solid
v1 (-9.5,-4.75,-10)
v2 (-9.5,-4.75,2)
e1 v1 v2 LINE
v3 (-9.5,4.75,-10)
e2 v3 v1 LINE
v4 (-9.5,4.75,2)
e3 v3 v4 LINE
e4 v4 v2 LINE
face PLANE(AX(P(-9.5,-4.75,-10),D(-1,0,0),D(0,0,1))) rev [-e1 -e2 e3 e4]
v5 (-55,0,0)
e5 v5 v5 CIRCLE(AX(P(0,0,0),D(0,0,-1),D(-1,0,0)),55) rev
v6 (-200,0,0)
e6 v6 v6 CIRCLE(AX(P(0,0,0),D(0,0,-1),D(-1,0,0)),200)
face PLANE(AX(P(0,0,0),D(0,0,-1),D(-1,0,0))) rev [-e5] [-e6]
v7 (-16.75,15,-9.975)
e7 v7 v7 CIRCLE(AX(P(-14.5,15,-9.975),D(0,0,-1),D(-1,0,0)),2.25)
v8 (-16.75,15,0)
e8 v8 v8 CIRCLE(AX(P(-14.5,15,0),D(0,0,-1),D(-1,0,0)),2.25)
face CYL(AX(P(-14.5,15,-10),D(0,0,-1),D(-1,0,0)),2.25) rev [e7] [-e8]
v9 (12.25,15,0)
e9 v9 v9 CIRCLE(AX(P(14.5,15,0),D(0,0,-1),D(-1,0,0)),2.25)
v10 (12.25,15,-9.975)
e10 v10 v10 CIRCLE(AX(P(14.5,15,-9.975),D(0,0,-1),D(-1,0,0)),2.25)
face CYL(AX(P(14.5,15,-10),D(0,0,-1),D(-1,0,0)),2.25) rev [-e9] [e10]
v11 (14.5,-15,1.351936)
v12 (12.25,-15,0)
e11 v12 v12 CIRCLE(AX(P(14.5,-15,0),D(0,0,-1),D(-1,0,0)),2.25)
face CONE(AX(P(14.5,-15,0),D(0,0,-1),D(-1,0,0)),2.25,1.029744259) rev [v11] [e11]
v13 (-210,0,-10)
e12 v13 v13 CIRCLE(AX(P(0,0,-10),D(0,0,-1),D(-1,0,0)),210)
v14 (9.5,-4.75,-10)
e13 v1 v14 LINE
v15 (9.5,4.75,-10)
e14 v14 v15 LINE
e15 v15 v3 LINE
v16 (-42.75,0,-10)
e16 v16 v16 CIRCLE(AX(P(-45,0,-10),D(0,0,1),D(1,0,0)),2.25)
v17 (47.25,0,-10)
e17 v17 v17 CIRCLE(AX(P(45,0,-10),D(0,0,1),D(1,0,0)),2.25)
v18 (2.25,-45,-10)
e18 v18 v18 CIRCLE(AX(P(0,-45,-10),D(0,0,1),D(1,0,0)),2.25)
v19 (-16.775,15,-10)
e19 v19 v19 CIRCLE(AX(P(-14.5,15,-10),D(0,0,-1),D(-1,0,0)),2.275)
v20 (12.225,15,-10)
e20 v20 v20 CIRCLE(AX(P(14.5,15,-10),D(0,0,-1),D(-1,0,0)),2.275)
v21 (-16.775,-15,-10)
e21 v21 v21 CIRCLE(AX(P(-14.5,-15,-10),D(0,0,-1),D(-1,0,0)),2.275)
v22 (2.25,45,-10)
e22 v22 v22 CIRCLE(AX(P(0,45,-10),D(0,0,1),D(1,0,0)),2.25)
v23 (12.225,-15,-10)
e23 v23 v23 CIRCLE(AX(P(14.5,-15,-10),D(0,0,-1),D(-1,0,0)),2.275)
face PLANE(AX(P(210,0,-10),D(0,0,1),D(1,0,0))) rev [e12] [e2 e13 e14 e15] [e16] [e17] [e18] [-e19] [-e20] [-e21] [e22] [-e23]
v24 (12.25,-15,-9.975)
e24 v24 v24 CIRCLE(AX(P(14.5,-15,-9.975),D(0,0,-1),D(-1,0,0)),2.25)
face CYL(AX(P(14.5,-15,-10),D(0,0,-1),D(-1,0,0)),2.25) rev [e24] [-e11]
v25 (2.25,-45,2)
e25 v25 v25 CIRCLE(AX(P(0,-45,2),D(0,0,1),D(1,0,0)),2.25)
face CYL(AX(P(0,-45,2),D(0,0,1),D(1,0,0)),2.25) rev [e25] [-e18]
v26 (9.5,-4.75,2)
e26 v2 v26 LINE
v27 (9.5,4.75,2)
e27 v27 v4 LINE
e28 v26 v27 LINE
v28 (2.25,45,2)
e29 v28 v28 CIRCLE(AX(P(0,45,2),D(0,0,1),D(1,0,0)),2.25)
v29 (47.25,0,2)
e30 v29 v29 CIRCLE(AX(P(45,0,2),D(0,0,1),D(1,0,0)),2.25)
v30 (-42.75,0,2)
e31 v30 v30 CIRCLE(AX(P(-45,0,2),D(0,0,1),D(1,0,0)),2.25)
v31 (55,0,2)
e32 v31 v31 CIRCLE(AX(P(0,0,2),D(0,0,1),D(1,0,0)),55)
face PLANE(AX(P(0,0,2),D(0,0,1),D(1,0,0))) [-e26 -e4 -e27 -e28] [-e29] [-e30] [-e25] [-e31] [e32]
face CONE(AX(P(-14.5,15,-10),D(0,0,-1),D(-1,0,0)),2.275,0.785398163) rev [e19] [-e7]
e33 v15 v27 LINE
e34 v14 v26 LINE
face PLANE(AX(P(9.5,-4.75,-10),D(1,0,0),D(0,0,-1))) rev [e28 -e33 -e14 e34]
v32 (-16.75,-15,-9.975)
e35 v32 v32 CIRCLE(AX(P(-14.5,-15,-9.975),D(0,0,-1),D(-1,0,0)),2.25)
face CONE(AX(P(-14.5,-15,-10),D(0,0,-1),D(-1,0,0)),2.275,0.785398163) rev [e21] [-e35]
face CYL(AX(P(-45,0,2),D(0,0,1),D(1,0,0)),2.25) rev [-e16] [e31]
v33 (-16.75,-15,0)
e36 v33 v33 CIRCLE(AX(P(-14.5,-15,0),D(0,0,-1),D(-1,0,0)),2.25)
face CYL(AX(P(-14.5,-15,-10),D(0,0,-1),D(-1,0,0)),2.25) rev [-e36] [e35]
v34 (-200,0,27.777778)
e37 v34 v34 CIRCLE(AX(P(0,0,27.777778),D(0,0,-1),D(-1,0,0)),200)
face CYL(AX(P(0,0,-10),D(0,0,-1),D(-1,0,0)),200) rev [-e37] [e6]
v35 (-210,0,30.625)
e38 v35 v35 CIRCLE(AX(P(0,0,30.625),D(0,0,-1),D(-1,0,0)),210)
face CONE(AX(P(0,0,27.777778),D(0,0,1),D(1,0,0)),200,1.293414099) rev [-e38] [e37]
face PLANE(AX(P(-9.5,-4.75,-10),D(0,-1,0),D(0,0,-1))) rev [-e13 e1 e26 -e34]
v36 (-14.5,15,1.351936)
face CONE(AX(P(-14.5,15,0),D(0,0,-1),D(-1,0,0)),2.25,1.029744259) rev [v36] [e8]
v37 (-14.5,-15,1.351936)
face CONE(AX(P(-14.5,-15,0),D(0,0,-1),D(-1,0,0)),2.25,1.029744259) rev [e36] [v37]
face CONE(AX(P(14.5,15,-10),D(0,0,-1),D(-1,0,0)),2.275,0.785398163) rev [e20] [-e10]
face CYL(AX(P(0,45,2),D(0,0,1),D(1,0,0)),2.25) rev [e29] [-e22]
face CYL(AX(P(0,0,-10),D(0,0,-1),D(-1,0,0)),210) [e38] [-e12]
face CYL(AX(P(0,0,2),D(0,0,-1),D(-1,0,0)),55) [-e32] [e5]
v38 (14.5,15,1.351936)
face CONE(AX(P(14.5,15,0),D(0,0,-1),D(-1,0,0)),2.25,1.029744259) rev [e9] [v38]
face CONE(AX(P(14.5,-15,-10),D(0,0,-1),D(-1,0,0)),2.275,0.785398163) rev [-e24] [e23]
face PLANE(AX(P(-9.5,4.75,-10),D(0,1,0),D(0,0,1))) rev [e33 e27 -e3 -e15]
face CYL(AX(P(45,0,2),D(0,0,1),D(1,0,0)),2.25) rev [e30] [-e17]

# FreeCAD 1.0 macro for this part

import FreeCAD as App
import Part
import Sketcher
from FreeCAD import Vector
Q = App.Units.Quantity


def add_polygon(sketch, points):
    """Adds a closed chain of lines whose ends are joined by coincident constraints."""
    first, n = sketch.GeometryCount, len(points)
    for a, b in zip(points, points[1:] + points[:1]):
        sketch.addGeometry(Part.LineSegment(App.Vector(*a, 0), App.Vector(*b, 0)), False)
    for i in range(n):
        sketch.addConstraint(Sketcher.Constraint("Coincident", first + i, 2, first + (i + 1) % n, 1))

doc = App.newDocument("Part")
params = doc.addObject("Spreadsheet::Sheet", "Params")
for row, (alias, value) in enumerate([
    ("sketch1_width", "200 mm"),
    ("sketch1_width2", "210 mm"),
    ("sketch1_height", "10 mm"),
    ("revolution_angle", "360 deg"),
    ("sketch2_width", "19 mm"),
    ("sketch2_height", "9.5 mm"),
    ("sketch3_diameter", "110 mm"),
    ("pad1_length", "2 mm"),
    ("sketch4_width", "19 mm"),
    ("sketch4_height", "9.5 mm"),
    ("pocket2_length", "2 mm"),
    ("sketch5_diameter", "4.5 mm"),
    ("hole_diameter", "4.5 mm"),
    ("sketch6_diameter", "4.5 mm"),
    ("hole2_diameter", "4.5 mm"),
    ("hole2_depth", "10 mm"),
    ("hole2_csink_diameter", "4.55 mm"),
], start=1):
    params.set(f"A{row}", alias)
    params.set(f"B{row}", "=" + value)
    params.setAlias(f"B{row}", alias)

body = doc.addObject("PartDesign::Body", "Body")

# Sketch on XZ plane
sketch1 = body.newObject("Sketcher::SketchObject", "Sketch")
sketch1.AttachmentSupport = (doc.getObject("XZ_Plane"), [""])
sketch1.MapMode = "FlatFace"
add_polygon(sketch1, [(0, 0), (200, 0), (200, 28), (210, 31), (210, -10), (0, -10)])  # lines 0-5
sketch1.addConstraint([
    Sketcher.Constraint("Horizontal", 0),
    Sketcher.Constraint("Vertical", 1),
    Sketcher.Constraint("Vertical", 3),
    Sketcher.Constraint("Horizontal", 4),
    Sketcher.Constraint("Vertical", 5),
    Sketcher.Constraint("Coincident", 5, 2, -1, 1),
    Sketcher.Constraint("DistanceX", 0, 1, 0, 2, Q("200 mm")),
    Sketcher.Constraint("DistanceX", 4, 2, 4, 1, Q("210 mm")),
    Sketcher.Constraint("DistanceY", 5, 1, 5, 2, Q("10 mm")),
    Sketcher.Constraint("DistanceY", 3, 2, 3, 1, Q("40.625 mm")),
    Sketcher.Constraint("DistanceY", 1, 1, 1, 2, Q("27.777778 mm")),
])
sketch1.setExpression("Constraints[12]", "Params.sketch1_width")
sketch1.setExpression("Constraints[13]", "Params.sketch1_width2")
sketch1.setExpression("Constraints[14]", "Params.sketch1_height")
revolution = body.newObject("PartDesign::Revolution", "Revolution")
revolution.Profile = sketch1
revolution.ReferenceAxis = (sketch1, ["V_Axis"])
revolution.setExpression("Angle", "Params.revolution_angle")

# Sketch on XY plane
sketch2 = body.newObject("Sketcher::SketchObject", "Sketch001")
sketch2.AttachmentSupport = (doc.getObject("XY_Plane"), [""])
sketch2.MapMode = "FlatFace"
add_polygon(sketch2, [(-10, 5), (-10, -5), (10, -5), (10, 5)])  # lines 0-3
sketch2.addConstraint([
    Sketcher.Constraint("Vertical", 0),
    Sketcher.Constraint("Horizontal", 1),
    Sketcher.Constraint("Vertical", 2),
    Sketcher.Constraint("Horizontal", 3),
    Sketcher.Constraint("Symmetric", 0, 2, 2, 2, -1, 1),
    Sketcher.Constraint("DistanceX", 1, 1, 1, 2, Q("19 mm")),
    Sketcher.Constraint("DistanceY", 0, 2, 0, 1, Q("9.5 mm")),
])
sketch2.setExpression("Constraints[9]", "Params.sketch2_width")
sketch2.setExpression("Constraints[10]", "Params.sketch2_height")
pocket1 = body.newObject("PartDesign::Pocket", "Pocket")
pocket1.Profile = sketch2
pocket1.Type = "ThroughAll"
pocket1.Midplane = True

# Sketch on XY plane
sketch3 = body.newObject("Sketcher::SketchObject", "Sketch002")
sketch3.AttachmentSupport = (doc.getObject("XY_Plane"), [""])
sketch3.MapMode = "FlatFace"
sketch3.addGeometry(Part.Circle(Vector(0, 0, 0), Vector(0, 0, 1), 55), False)
sketch3.addConstraint([
    Sketcher.Constraint("Coincident", 0, 3, -1, 1),
    Sketcher.Constraint("Diameter", 0, Q("110 mm")),
])
sketch3.setExpression("Constraints[1]", "Params.sketch3_diameter")
pad1 = body.newObject("PartDesign::Pad", "Pad")
pad1.Profile = sketch3
pad1.setExpression("Length", "Params.pad1_length")

# Sketch on XY plane
sketch4 = body.newObject("Sketcher::SketchObject", "Sketch003")
sketch4.AttachmentSupport = (doc.getObject("XY_Plane"), [""])
sketch4.MapMode = "FlatFace"
sketch4.AttachmentOffset = App.Placement(Vector(0, 0, 2), App.Rotation())
add_polygon(sketch4, [(-10, 5), (-10, -5), (10, -5), (10, 5)])  # lines 0-3
sketch4.addConstraint([
    Sketcher.Constraint("Vertical", 0),
    Sketcher.Constraint("Horizontal", 1),
    Sketcher.Constraint("Vertical", 2),
    Sketcher.Constraint("Horizontal", 3),
    Sketcher.Constraint("Symmetric", 0, 2, 2, 2, -1, 1),
    Sketcher.Constraint("DistanceX", 1, 1, 1, 2, Q("19 mm")),
    Sketcher.Constraint("DistanceY", 0, 2, 0, 1, Q("9.5 mm")),
])
sketch4.setExpression("Constraints[9]", "Params.sketch4_width")
sketch4.setExpression("Constraints[10]", "Params.sketch4_height")
pocket2 = body.newObject("PartDesign::Pocket", "Pocket001")
pocket2.Profile = sketch4
pocket2.setExpression("Length", "Params.pocket2_length")

# Sketch on XY plane
sketch5 = body.newObject("Sketcher::SketchObject", "Sketch004")
sketch5.AttachmentSupport = (doc.getObject("XY_Plane"), [""])
sketch5.MapMode = "FlatFace"
sketch5.AttachmentOffset = App.Placement(Vector(0, 0, 2), App.Rotation())
sketch5.addGeometry(Part.Circle(Vector(0, 45, 0), Vector(0, 0, 1), 2.2), False)
sketch5.addConstraint([
    Sketcher.Constraint("PointOnObject", 0, 3, -2),
    Sketcher.Constraint("Diameter", 0, Q("4.5 mm")),
    Sketcher.Constraint("DistanceY", -1, 1, 0, 3, Q("45 mm")),
])
sketch5.setExpression("Constraints[1]", "Params.sketch5_diameter")
doc.recompute()
hole = body.newObject("PartDesign::Hole", "Hole")
hole.Profile = sketch5
hole.ThreadType = "None"
hole.setExpression("Diameter", "Params.hole_diameter")
hole.DepthType = "ThroughAll"
doc.recompute()

polarpattern = body.newObject("PartDesign::PolarPattern", "PolarPattern")
polarpattern.Originals = [hole]
polarpattern.Axis = (doc.getObject("Z_Axis"), [""])
polarpattern.Angle = 360
polarpattern.Occurrences = 4
body.Tip = polarpattern

# Sketch on XY plane
sketch6 = body.newObject("Sketcher::SketchObject", "Sketch005")
sketch6.AttachmentSupport = (doc.getObject("XY_Plane"), [""])
sketch6.MapMode = "FlatFace"
sketch6.AttachmentOffset = App.Placement(Vector(0, 0, -10), App.Rotation())
sketch6.addGeometry([
    Part.Circle(Vector(-14.5, 15, 0), Vector(0, 0, 1), 2.2),
    Part.Circle(Vector(14.5, 15, 0), Vector(0, 0, 1), 2.2),
    Part.Circle(Vector(14.5, -15, 0), Vector(0, 0, 1), 2.2),
    Part.Circle(Vector(-14.5, -15, 0), Vector(0, 0, 1), 2.2),
], False)
sketch6.addConstraint([
    Sketcher.Constraint("Equal", 0, 1),
    Sketcher.Constraint("Equal", 1, 2),
    Sketcher.Constraint("Equal", 2, 3),
    Sketcher.Constraint("Symmetric", 0, 3, 2, 3, -1, 1),
    Sketcher.Constraint("Symmetric", 1, 3, 3, 3, -1, 1),
    Sketcher.Constraint("Symmetric", 0, 3, 1, 3, -2),
    Sketcher.Constraint("Diameter", 0, Q("4.5 mm")),
    Sketcher.Constraint("DistanceY", -1, 1, 0, 3, Q("15 mm")),
    Sketcher.Constraint("DistanceX", 0, 3, 1, 3, Q("29 mm")),
])
sketch6.setExpression("Constraints[6]", "Params.sketch6_diameter")
doc.recompute()
hole2 = body.newObject("PartDesign::Hole", "Hole001")
hole2.Profile = sketch6
hole2.ThreadType = "None"
hole2.setExpression("Diameter", "Params.hole2_diameter")
hole2.DepthType = "Dimension"
hole2.setExpression("Depth", "Params.hole2_depth")
hole2.DrillPoint = "Angled"
hole2.DrillPointAngle = 118
hole2.HoleCutType = "Countersink"
hole2.setExpression("HoleCutDiameter", "Params.hole2_csink_diameter")
hole2.HoleCutCountersinkAngle = 90
hole2.Reversed = True

doc.recompute()
